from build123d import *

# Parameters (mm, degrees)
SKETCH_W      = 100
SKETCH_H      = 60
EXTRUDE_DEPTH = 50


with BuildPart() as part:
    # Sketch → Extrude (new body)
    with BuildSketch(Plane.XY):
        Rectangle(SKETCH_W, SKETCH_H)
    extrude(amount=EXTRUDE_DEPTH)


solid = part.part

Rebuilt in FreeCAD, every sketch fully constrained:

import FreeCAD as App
import Part
import Sketcher
Q = App.Units.Quantity

doc = App.newDocument("Part")
params = doc.addObject("Spreadsheet::Sheet", "Params")
for row, (alias, value) in enumerate([
    ("sketch1_width", "100 mm"),
    ("sketch1_height", "60 mm"),
    ("pad1_length", "50 mm"),
], start=1):
    params.set(f"A{row}", alias)
    params.set(f"B{row}", "=" + value)
    params.setAlias(f"B{row}", alias)

body = doc.addObject("PartDesign::Body", "Body")

sketch1 = body.newObject("Sketcher::SketchObject", "Sketch")
sketch1.AttachmentSupport = (doc.getObject("XY_Plane"), [""])
sketch1.MapMode = "FlatFace"
sketch1.addGeometry([
    Part.LineSegment(App.Vector(-50, 30, 0), App.Vector(-50, -30, 0)),
    Part.LineSegment(App.Vector(-50, -30, 0), App.Vector(50, -30, 0)),
    Part.LineSegment(App.Vector(50, -30, 0), App.Vector(50, 30, 0)),
    Part.LineSegment(App.Vector(50, 30, 0), App.Vector(-50, 30, 0)),
], False)
sketch1.addConstraint([
    Sketcher.Constraint("Coincident", 0, 2, 1, 1),
    Sketcher.Constraint("Coincident", 1, 2, 2, 1),
    Sketcher.Constraint("Coincident", 2, 2, 3, 1),
    Sketcher.Constraint("Coincident", 3, 2, 0, 1),
    Sketcher.Constraint("Vertical", 0),
    Sketcher.Constraint("Horizontal", 1),
    Sketcher.Constraint("Vertical", 2),
    Sketcher.Constraint("Horizontal", 3),
    Sketcher.Constraint("Symmetric", 0, 2, 2, 2, -1, 1),
    Sketcher.Constraint("DistanceX", 1, 1, 1, 2, Q("100 mm")),
    Sketcher.Constraint("DistanceY", 0, 2, 0, 1, Q("60 mm")),
])
sketch1.setExpression("Constraints[9]", "Params.sketch1_width")
sketch1.setExpression("Constraints[10]", "Params.sketch1_height")
pad1 = body.newObject("PartDesign::Pad", "Pad")
pad1.Profile = sketch1
pad1.setExpression("Length", "Params.pad1_length")

doc.recompute()
